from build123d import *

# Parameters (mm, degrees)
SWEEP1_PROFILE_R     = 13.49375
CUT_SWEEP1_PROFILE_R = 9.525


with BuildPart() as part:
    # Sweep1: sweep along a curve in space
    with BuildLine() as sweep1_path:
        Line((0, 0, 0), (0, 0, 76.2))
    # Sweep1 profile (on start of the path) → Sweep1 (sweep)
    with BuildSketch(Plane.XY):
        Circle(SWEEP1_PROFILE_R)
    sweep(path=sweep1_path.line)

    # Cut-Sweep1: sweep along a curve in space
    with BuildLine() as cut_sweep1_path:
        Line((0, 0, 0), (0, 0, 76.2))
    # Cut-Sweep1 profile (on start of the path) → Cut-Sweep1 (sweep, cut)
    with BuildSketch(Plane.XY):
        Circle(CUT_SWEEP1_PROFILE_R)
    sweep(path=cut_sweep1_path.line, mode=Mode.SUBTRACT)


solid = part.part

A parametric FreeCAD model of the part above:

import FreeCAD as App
import Part
import Sketcher

V = App.Vector
Q = App.Units.Quantity

doc = App.newDocument("Part")
params = doc.addObject("Spreadsheet::Sheet", "Params")
for row, (alias, value) in enumerate([
    ("sketch1_diameter", "1.0625 in"),
    ("sketch2_height", "3 in"),
    ("sketch3_diameter", "0.75 in"),
    ("sketch4_height", "3 in"),
], start=1):
    params.set(f"A{row}", alias)
    params.set(f"B{row}", "=" + value)
    params.setAlias(f"B{row}", alias)

body = doc.addObject("PartDesign::Body", "Body")

sketch1 = doc.addObject("Sketcher::SketchObject", "Sketch")
body.addObject(sketch1)
sketch1.AttachmentSupport = (doc.XY_Plane, [""])
sketch1.MapMode = "FlatFace"
sketch1.addGeometry(Part.Circle(V(0, 0, 0), V(0, 0, 1), 13), False)
sketch1.addConstraint(Sketcher.Constraint("Coincident", 0, 3, -1, 1))
sketch1.addConstraint(Sketcher.Constraint("Diameter", 0, Q("1.0625 in")))
sketch1.setExpression("Constraints[1]", "Params.sketch1_diameter")

sketch2 = doc.addObject("Sketcher::SketchObject", "Sketch001")
body.addObject(sketch2)
sketch2.AttachmentSupport = (doc.XZ_Plane, [""])
sketch2.MapMode = "FlatFace"
sketch2.addGeometry(Part.LineSegment(V(0, 0, 0), V(0, 76, 0)), False)
sketch2.addConstraint(Sketcher.Constraint("Vertical", 0))
sketch2.addConstraint(Sketcher.Constraint("Coincident", 0, 1, -1, 1))
sketch2.addConstraint(Sketcher.Constraint("DistanceY", 0, 1, 0, 2, Q("3 in")))
sketch2.setExpression("Constraints[2]", "Params.sketch2_height")
doc.recompute()

additivepipe = doc.addObject("PartDesign::AdditivePipe", "AdditivePipe")
body.addObject(additivepipe)
additivepipe.Profile = sketch1
additivepipe.Spine = (sketch2, ["Edge1"])

sketch3 = doc.addObject("Sketcher::SketchObject", "Sketch002")
body.addObject(sketch3)
sketch3.AttachmentSupport = (doc.XY_Plane, [""])
sketch3.MapMode = "FlatFace"
sketch3.addGeometry(Part.Circle(V(0, 0, 0), V(0, 0, 1), 10), False)
sketch3.addConstraint(Sketcher.Constraint("Coincident", 0, 3, -1, 1))
sketch3.addConstraint(Sketcher.Constraint("Diameter", 0, Q("0.75 in")))
sketch3.setExpression("Constraints[1]", "Params.sketch3_diameter")

sketch4 = doc.addObject("Sketcher::SketchObject", "Sketch003")
body.addObject(sketch4)
sketch4.AttachmentSupport = (doc.XZ_Plane, [""])
sketch4.MapMode = "FlatFace"
sketch4.addGeometry(Part.LineSegment(V(0, 0, 0), V(0, 76, 0)), False)
sketch4.addConstraint(Sketcher.Constraint("Vertical", 0))
sketch4.addConstraint(Sketcher.Constraint("Coincident", 0, 1, -1, 1))
sketch4.addConstraint(Sketcher.Constraint("DistanceY", 0, 1, 0, 2, Q("3 in")))
sketch4.setExpression("Constraints[2]", "Params.sketch4_height")
doc.recompute()

subtractivepipe = doc.addObject("PartDesign::SubtractivePipe", "SubtractivePipe")
body.addObject(subtractivepipe)
subtractivepipe.Profile = sketch3
subtractivepipe.Spine = (sketch4, ["Edge1"])

doc.recompute()
